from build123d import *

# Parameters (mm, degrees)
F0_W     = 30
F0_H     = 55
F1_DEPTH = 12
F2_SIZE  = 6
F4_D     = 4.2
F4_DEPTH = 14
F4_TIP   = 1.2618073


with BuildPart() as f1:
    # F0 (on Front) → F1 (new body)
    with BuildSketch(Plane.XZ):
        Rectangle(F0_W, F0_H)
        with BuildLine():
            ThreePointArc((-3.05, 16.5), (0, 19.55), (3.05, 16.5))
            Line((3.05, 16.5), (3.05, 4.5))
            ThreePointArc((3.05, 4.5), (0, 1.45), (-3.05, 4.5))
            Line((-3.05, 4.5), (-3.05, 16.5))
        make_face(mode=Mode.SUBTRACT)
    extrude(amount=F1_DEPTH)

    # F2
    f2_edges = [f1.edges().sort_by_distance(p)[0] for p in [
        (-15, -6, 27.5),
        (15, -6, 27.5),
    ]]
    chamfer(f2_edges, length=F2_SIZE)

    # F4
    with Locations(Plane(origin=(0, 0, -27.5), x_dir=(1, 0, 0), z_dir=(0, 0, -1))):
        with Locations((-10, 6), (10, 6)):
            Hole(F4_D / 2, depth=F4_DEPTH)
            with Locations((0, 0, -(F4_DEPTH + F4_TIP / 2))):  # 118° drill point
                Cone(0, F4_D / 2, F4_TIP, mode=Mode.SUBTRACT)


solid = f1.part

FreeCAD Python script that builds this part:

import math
import FreeCAD as App
import Part
import Sketcher

V = App.Vector
Q = App.Units.Quantity


def edges_at(feature, points):
    """Names of the edges that pass closest to the given points."""
    edges = feature.Shape.Edges
    near = lambda p: min(range(len(edges)), key=lambda i: edges[i].distToShape(Part.Vertex(*p))[0])
    return sorted({f"Edge{near(p) + 1}" for p in points})


def add_polygon(sketch, points):
    """Adds a closed chain of lines whose ends are joined by coincident constraints."""
    first, n = sketch.GeometryCount, len(points)
    for a, b in zip(points, points[1:] + points[:1]):
        sketch.addGeometry(Part.LineSegment(App.Vector(*a, 0), App.Vector(*b, 0)), False)
    for i in range(n):
        sketch.addConstraint(Sketcher.Constraint("Coincident", first + i, 2, first + (i + 1) % n, 1))

doc = App.newDocument("Part")
params = doc.addObject("Spreadsheet::Sheet", "Params")
for row, (alias, value) in enumerate([
    ("sketch1_width", "30 mm"),
    ("sketch1_height", "55 mm"),
    ("sketch1_height2", "12 mm"),
    ("sketch1_radius", "3.05 mm"),
    ("pad1_length", "12 mm"),
    ("chamfer_size", "6 mm"),
    ("sketch2_diameter", "4.2 mm"),
    ("hole_diameter", "4.2 mm"),
    ("hole_depth", "14 mm"),
], start=1):
    params.set(f"A{row}", alias)
    params.set(f"B{row}", "=" + value)
    params.setAlias(f"B{row}", alias)

body = doc.addObject("PartDesign::Body", "Body")

sketch1 = doc.addObject("Sketcher::SketchObject", "Sketch")
body.addObject(sketch1)
sketch1.AttachmentSupport = (doc.XZ_Plane, [""])
sketch1.MapMode = "FlatFace"
add_polygon(sketch1, [(-15, 27.5), (-15, -27.5), (15, -27.5), (15, 27.5)])
sketch1.addGeometry(Part.LineSegment(V(-3.05, 4.5, 0), V(-3.05, 16.5, 0)), False)
sketch1.addGeometry(Part.ArcOfCircle(Part.Circle(V(0, 16.5, 0), V(0, 0, 1), 3.05), math.radians(0), math.radians(180)), False)
sketch1.addGeometry(Part.LineSegment(V(3.05, 16.5, 0), V(3.05, 4.5, 0)), False)
sketch1.addGeometry(Part.ArcOfCircle(Part.Circle(V(0, 4.5, 0), V(0, 0, 1), 3.05), math.radians(180), math.radians(360)), False)
sketch1.addConstraint([
    Sketcher.Constraint("Tangent", 4, 2, 5, 2),
    Sketcher.Constraint("Tangent", 5, 1, 6, 1),
    Sketcher.Constraint("Tangent", 6, 2, 7, 2),
    Sketcher.Constraint("Tangent", 7, 1, 4, 1),
    Sketcher.Constraint("Vertical", 0),
    Sketcher.Constraint("Horizontal", 1),
    Sketcher.Constraint("Vertical", 2),
    Sketcher.Constraint("Horizontal", 3),
    Sketcher.Constraint("Vertical", 4),
    Sketcher.Constraint("Vertical", 6),
    Sketcher.Constraint("Symmetric", 0, 2, 2, 2, -1, 1),
    Sketcher.Constraint("PointOnObject", 5, 3, -2),
    Sketcher.Constraint("DistanceX", 1, 1, 1, 2, Q("30 mm")),
    Sketcher.Constraint("DistanceY", 0, 2, 0, 1, Q("55 mm")),
    Sketcher.Constraint("DistanceY", 4, 1, 4, 2, Q("12 mm")),
    Sketcher.Constraint("Radius", 5, Q("3.05 mm")),
    Sketcher.Constraint("DistanceY", 0, 2, 7, 3, Q("32 mm")),
])
sketch1.setExpression("Constraints[16]", "Params.sketch1_width")
sketch1.setExpression("Constraints[17]", "Params.sketch1_height")
sketch1.setExpression("Constraints[18]", "Params.sketch1_height2")
sketch1.setExpression("Constraints[19]", "Params.sketch1_radius")
pad1 = doc.addObject("PartDesign::Pad", "Pad")
body.addObject(pad1)
pad1.Profile = sketch1
pad1.setExpression("Length", "Params.pad1_length")
doc.recompute()

chamfer = doc.addObject("PartDesign::Chamfer", "Chamfer")
body.addObject(chamfer)
chamfer.Base = (pad1, edges_at(pad1, [(-15, -6, 27.5), (15, -6, 27.5)]))
chamfer.setExpression("Size", "Params.chamfer_size")

sketch2 = doc.addObject("Sketcher::SketchObject", "Sketch001")
body.addObject(sketch2)
sketch2.AttachmentSupport = (doc.XY_Plane, [""])
sketch2.MapMode = "FlatFace"
sketch2.AttachmentOffset = App.Placement(V(0, 0, -27.5), App.Rotation())
sketch2.addGeometry([
    Part.Circle(V(-10, -6, 0), V(0, 0, 1), 2.1),
    Part.Circle(V(10, -6, 0), V(0, 0, 1), 2.1),
], False)
sketch2.addConstraint([
    Sketcher.Constraint("Equal", 0, 1),
    Sketcher.Constraint("Symmetric", 0, 3, 1, 3, -2),
    Sketcher.Constraint("Diameter", 0, Q("4.2 mm")),
    Sketcher.Constraint("DistanceX", 0, 3, -1, 1, Q("10 mm")),
    Sketcher.Constraint("DistanceY", 0, 3, -1, 1, Q("6 mm")),
])
sketch2.setExpression("Constraints[2]", "Params.sketch2_diameter")
doc.recompute()
hole = doc.addObject("PartDesign::Hole", "Hole")
body.addObject(hole)
hole.Profile = sketch2
hole.ThreadType = "None"
hole.setExpression("Diameter", "Params.hole_diameter")
hole.DepthType = "Dimension"
hole.setExpression("Depth", "Params.hole_depth")
hole.DrillPoint = "Angled"
hole.DrillPointAngle = 118
hole.Reversed = True

doc.recompute()
